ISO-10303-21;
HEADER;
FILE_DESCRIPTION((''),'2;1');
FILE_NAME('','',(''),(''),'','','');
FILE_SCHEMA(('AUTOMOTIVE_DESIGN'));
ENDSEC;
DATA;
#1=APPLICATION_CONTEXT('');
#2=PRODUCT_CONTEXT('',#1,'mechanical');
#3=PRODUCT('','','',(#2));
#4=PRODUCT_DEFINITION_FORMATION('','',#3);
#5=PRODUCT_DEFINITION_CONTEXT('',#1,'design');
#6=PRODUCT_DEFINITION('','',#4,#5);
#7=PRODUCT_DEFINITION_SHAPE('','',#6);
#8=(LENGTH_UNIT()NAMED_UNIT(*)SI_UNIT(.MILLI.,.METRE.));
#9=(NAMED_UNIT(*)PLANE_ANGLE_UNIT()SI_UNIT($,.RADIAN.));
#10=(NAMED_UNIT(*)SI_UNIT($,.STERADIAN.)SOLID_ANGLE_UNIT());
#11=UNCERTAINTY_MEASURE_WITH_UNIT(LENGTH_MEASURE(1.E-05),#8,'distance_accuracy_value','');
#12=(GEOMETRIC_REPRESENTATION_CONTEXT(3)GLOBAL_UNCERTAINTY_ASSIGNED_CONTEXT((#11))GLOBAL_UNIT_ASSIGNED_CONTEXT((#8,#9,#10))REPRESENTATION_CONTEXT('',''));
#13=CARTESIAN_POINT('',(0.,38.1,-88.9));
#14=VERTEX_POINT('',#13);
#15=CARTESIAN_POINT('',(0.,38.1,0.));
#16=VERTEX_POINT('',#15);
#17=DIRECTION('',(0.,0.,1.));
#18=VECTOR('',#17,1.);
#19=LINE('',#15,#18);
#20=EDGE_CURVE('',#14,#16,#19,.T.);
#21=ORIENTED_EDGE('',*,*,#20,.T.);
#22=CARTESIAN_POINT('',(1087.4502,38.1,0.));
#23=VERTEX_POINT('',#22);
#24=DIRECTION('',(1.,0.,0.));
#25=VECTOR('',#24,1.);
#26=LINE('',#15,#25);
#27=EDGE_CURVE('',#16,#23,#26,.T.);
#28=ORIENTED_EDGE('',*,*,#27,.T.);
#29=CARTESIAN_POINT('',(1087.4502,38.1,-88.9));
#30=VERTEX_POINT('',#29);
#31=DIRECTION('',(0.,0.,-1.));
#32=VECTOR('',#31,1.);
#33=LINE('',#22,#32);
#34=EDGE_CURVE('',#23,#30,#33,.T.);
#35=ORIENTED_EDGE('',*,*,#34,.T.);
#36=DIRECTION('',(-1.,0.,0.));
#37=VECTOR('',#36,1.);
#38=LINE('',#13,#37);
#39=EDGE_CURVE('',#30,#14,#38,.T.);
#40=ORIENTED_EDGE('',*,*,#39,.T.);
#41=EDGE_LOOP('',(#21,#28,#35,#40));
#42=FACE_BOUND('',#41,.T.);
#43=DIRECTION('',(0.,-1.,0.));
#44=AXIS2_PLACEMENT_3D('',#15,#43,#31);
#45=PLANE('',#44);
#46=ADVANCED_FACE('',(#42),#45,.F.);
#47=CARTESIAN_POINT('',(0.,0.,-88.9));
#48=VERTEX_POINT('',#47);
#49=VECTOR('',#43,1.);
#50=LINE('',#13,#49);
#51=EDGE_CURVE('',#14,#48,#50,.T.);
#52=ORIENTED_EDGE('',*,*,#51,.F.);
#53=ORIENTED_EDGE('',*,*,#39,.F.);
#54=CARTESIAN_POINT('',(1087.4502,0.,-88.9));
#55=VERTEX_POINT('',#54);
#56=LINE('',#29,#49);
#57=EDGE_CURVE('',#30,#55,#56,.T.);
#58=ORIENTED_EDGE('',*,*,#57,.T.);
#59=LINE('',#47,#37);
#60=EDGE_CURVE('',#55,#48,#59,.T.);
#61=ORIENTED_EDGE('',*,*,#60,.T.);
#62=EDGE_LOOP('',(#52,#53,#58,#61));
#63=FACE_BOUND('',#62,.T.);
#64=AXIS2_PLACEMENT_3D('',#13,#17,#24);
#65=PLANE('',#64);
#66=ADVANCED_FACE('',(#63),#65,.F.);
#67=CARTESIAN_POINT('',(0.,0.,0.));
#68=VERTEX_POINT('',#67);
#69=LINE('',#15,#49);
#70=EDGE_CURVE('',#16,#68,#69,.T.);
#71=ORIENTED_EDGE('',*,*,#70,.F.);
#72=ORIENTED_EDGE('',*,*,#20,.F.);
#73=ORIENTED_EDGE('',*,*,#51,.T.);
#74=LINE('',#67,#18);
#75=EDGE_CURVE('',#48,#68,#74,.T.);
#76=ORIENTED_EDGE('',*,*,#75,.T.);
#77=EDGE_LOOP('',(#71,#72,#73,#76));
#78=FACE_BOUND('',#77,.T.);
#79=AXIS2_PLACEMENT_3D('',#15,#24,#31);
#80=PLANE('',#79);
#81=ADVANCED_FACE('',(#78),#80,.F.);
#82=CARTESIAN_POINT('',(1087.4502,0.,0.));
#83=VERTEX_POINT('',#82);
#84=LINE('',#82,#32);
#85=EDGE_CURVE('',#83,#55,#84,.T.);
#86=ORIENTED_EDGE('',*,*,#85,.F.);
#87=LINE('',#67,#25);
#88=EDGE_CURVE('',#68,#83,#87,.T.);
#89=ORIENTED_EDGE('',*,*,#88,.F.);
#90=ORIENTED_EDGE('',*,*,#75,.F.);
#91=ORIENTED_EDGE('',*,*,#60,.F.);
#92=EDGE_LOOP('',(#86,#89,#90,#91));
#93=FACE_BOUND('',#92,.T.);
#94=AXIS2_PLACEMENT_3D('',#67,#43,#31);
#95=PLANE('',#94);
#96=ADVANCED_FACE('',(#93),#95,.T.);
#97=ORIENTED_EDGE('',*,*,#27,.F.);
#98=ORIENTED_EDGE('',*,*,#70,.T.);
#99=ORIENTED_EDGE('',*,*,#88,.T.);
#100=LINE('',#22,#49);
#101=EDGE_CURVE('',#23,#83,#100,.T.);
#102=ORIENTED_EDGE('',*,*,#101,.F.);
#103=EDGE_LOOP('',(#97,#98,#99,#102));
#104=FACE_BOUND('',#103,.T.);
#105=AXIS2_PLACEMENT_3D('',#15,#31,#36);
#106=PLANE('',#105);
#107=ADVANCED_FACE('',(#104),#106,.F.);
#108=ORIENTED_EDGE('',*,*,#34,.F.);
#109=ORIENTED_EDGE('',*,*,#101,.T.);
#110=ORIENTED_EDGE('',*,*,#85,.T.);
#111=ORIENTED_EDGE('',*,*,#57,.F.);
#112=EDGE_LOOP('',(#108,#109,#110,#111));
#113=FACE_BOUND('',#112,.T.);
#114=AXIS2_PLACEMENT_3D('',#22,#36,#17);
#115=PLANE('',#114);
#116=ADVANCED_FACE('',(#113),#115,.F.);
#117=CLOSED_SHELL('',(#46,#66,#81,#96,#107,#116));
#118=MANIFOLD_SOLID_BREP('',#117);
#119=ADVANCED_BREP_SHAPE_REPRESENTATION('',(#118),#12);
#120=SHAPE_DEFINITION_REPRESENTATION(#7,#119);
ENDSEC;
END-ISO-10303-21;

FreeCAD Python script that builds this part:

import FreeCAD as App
import Part
import Sketcher
Q = App.Units.Quantity


def add_polygon(sketch, points):
    """Adds a closed chain of lines whose ends are joined by coincident constraints."""
    first, n = sketch.GeometryCount, len(points)
    for a, b in zip(points, points[1:] + points[:1]):
        sketch.addGeometry(Part.LineSegment(App.Vector(*a, 0), App.Vector(*b, 0)), False)
    for i in range(n):
        sketch.addConstraint(Sketcher.Constraint("Coincident", first + i, 2, first + (i + 1) % n, 1))

doc = App.newDocument("Part")
body = doc.addObject("PartDesign::Body", "Body")

# Sketch on XZ plane
sketch1 = body.newObject("Sketcher::SketchObject", "Sketch")
sketch1.AttachmentSupport = (doc.getObject("XZ_Plane"), [""])
sketch1.MapMode = "FlatFace"
add_polygon(sketch1, [(0, -89), (0, 0), (1087, 0), (1087, -89)])  # lines 0-3
sketch1.addConstraint([
    Sketcher.Constraint("Vertical", 0),
    Sketcher.Constraint("Horizontal", 1),
    Sketcher.Constraint("Vertical", 2),
    Sketcher.Constraint("Horizontal", 3),
    Sketcher.Constraint("Coincident", 0, 2, -1, 1),
    Sketcher.Constraint("DistanceY", 0, 1, 0, 2, Q("3.5 in")),
    Sketcher.Constraint("DistanceX", 1, 1, 1, 2, Q("42.813 in")),
])
pad1 = body.newObject("PartDesign::Pad", "Pad")
pad1.Profile = sketch1
pad1.Length = Q("1.5 in")
pad1.Reversed = True

doc.recompute()
